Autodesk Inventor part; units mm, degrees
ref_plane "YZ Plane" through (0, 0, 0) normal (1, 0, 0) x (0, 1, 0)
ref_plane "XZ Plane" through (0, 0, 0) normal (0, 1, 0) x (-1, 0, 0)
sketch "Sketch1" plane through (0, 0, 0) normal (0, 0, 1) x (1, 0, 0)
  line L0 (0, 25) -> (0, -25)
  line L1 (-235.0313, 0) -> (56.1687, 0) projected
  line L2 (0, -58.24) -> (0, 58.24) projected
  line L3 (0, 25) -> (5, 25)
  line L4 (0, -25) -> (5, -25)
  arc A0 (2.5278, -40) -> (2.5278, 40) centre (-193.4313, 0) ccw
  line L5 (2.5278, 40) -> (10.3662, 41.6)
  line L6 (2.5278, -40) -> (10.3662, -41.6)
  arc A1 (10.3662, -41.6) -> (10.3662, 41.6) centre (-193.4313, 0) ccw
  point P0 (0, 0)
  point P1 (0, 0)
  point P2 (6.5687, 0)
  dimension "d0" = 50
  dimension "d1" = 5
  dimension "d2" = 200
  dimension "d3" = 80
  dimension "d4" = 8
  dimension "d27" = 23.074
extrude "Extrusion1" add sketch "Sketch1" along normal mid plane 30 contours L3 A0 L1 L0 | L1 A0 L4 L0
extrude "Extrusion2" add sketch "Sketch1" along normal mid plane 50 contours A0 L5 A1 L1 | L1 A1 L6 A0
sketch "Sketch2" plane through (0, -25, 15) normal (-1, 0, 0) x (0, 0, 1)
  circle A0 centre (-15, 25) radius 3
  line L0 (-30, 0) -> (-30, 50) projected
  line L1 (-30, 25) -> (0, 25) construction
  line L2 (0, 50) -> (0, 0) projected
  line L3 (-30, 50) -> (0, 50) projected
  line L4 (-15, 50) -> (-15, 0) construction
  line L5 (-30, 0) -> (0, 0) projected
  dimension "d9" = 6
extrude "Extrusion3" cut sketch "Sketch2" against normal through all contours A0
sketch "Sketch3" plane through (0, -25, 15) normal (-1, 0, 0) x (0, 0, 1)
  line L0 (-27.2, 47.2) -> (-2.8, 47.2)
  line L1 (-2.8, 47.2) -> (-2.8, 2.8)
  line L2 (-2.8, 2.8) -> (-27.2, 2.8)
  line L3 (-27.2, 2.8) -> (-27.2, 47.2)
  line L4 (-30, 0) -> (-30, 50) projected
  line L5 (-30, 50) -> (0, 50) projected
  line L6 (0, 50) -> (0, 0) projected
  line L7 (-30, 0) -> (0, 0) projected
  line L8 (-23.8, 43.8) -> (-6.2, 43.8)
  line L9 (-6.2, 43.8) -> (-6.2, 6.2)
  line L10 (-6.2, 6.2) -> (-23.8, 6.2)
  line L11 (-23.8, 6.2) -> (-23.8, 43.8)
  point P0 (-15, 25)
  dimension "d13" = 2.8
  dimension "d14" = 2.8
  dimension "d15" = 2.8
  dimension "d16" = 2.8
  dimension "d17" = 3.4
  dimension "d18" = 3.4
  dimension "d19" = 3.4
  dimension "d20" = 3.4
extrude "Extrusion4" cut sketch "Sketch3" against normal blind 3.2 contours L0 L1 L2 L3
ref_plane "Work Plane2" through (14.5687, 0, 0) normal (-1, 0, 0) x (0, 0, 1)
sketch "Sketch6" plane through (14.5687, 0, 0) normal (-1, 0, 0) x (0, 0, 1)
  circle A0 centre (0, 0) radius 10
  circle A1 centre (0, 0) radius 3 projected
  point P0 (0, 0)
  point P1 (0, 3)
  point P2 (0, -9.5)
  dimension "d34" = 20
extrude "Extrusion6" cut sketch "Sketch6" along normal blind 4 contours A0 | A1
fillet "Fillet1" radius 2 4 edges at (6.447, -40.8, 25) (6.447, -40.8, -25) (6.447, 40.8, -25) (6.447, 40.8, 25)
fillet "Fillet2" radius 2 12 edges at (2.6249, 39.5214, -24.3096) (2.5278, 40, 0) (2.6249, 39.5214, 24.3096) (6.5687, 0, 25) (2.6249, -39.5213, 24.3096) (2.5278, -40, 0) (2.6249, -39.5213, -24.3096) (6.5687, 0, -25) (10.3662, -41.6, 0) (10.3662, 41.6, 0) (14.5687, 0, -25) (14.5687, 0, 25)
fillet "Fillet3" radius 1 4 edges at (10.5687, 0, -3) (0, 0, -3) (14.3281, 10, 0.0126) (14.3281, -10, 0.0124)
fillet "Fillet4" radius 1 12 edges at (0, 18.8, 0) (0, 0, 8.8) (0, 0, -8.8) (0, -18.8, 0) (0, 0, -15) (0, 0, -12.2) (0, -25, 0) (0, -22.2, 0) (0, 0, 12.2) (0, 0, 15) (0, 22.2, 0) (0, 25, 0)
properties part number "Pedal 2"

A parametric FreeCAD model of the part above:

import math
import FreeCAD as App
import Part
import Sketcher

V = App.Vector


def edges_at(feature, points):
    """Names of the edges that pass closest to the given points."""
    edges = feature.Shape.Edges
    near = lambda p: min(range(len(edges)), key=lambda i: edges[i].distToShape(Part.Vertex(*p))[0])
    return sorted({f"Edge{near(p) + 1}" for p in points})


def add_polygon(sketch, points):
    """Adds a closed chain of lines whose ends are joined by coincident constraints."""
    first, n = sketch.GeometryCount, len(points)
    for a, b in zip(points, points[1:] + points[:1]):
        sketch.addGeometry(Part.LineSegment(App.Vector(*a, 0), App.Vector(*b, 0)), False)
    for i in range(n):
        sketch.addConstraint(Sketcher.Constraint("Coincident", first + i, 2, first + (i + 1) % n, 1))

doc = App.newDocument("Part")
body = doc.addObject("PartDesign::Body", "Body")

# Sketch on XY plane
sketch1 = doc.addObject("Sketcher::SketchObject", "Sketch")
body.addObject(sketch1)
sketch1.AttachmentSupport = (doc.XY_Plane, [""])
sketch1.MapMode = "FlatFace"
sketch1.addGeometry([
    Part.LineSegment(V(5, 25, 0), V(0, 25, 0)),
    Part.LineSegment(V(0, 25, 0), V(0, -25, 0)),
    Part.LineSegment(V(0, -25, 0), V(5, -25, 0)),
    Part.ArcOfCircle(Part.Circle(V(-193, 0, 0), V(0, 0, 1), 200), math.radians(-7.18), math.radians(7.18)),
], False)
sketch1.addConstraint([
    Sketcher.Constraint("Coincident", 0, 2, 1, 1),
    Sketcher.Constraint("Coincident", 1, 2, 2, 1),
    Sketcher.Constraint("Coincident", 2, 2, 3, 1),
    Sketcher.Constraint("Coincident", 3, 2, 0, 1),
    Sketcher.Constraint("Horizontal", 0),
    Sketcher.Constraint("Vertical", 1),
    Sketcher.Constraint("Horizontal", 2),
    Sketcher.Constraint("Symmetric", 0, 2, 1, 2, -1, 1),
    Sketcher.Constraint("PointOnObject", 3, 3, -1),
    Sketcher.Constraint("Radius", 3, 200.0),
    Sketcher.Constraint("DistanceX", 0, 2, 0, 1, 5.0),
    Sketcher.Constraint("DistanceY", 1, 2, 1, 1, 50.0),
])
pad1 = doc.addObject("PartDesign::Pad", "Pad")
body.addObject(pad1)
pad1.Profile = sketch1
pad1.Length = 30
pad1.Midplane = True

# Sketch on XY plane
sketch2 = doc.addObject("Sketcher::SketchObject", "Sketch001")
body.addObject(sketch2)
sketch2.AttachmentSupport = (doc.XY_Plane, [""])
sketch2.MapMode = "FlatFace"
sketch2.addGeometry([
    Part.ArcOfCircle(Part.Circle(V(-193, 0, 0), V(0, 0, 1), 200), math.radians(-12), math.radians(12)),
    Part.LineSegment(V(3, -40, 0), V(10, -42, 0)),
    Part.ArcOfCircle(Part.Circle(V(-193, 0, 0), V(0, 0, 1), 208), math.radians(-12), math.radians(12)),
    Part.LineSegment(V(10, 42, 0), V(3, 40, 0)),
], False)
sketch2.addConstraint([
    Sketcher.Constraint("Coincident", 0, 1, 1, 1),
    Sketcher.Constraint("Coincident", 1, 2, 2, 1),
    Sketcher.Constraint("Coincident", 2, 2, 3, 1),
    Sketcher.Constraint("Coincident", 3, 2, 0, 2),
    Sketcher.Constraint("Coincident", 2, 3, 0, 3),
    Sketcher.Constraint("Symmetric", 1, 2, 2, 2, -1),
    Sketcher.Constraint("Vertical", 0, 1, 3, 2),
    Sketcher.Constraint("Radius", 0, 200.0),
    Sketcher.Constraint("Distance", 1, 8.0),
    Sketcher.Constraint("DistanceY", 0, 1, 3, 2, 80.0),
    Sketcher.Constraint("DistanceY", 1, 2, -1, 1, 41.6),
    Sketcher.Constraint("DistanceX", 0, 3, -1, 1, 193.4313),
])
pad2 = doc.addObject("PartDesign::Pad", "Pad001")
body.addObject(pad2)
pad2.Profile = sketch2
pad2.Length = 50
pad2.Midplane = True

# Sketch on YZ plane
sketch3 = doc.addObject("Sketcher::SketchObject", "Sketch002")
body.addObject(sketch3)
sketch3.AttachmentSupport = (doc.YZ_Plane, [""])
sketch3.MapMode = "FlatFace"
sketch3.addGeometry(Part.Circle(V(0, 0, 0), V(0, 0, 1), 3), False)
sketch3.addConstraint([
    Sketcher.Constraint("Coincident", 0, 3, -1, 1),
    Sketcher.Constraint("Diameter", 0, 6.0),
])
pocket1 = doc.addObject("PartDesign::Pocket", "Pocket")
body.addObject(pocket1)
pocket1.Profile = sketch3
pocket1.Type = "ThroughAll"
pocket1.Reversed = True

# Sketch on YZ plane
sketch4 = doc.addObject("Sketcher::SketchObject", "Sketch003")
body.addObject(sketch4)
sketch4.AttachmentSupport = (doc.YZ_Plane, [""])
sketch4.MapMode = "FlatFace"
add_polygon(sketch4, [(22, 12), (22, -12), (-22, -12), (-22, 12)])  # lines 0-3
add_polygon(sketch4, [(-19, -9), (19, -9), (19, 9), (-19, 9)])  # lines 4-7
sketch4.addConstraint([
    Sketcher.Constraint("Vertical", 0),
    Sketcher.Constraint("Horizontal", 1),
    Sketcher.Constraint("Vertical", 2),
    Sketcher.Constraint("Horizontal", 3),
    Sketcher.Constraint("Horizontal", 4),
    Sketcher.Constraint("Vertical", 5),
    Sketcher.Constraint("Horizontal", 6),
    Sketcher.Constraint("Vertical", 7),
    Sketcher.Constraint("Symmetric", 0, 2, 2, 2, -1, 1),
    Sketcher.Constraint("Symmetric", 4, 2, 6, 2, -1, 1),
    Sketcher.Constraint("DistanceX", 4, 2, 0, 2, 3.4),
    Sketcher.Constraint("DistanceY", 0, 2, 4, 2, 3.4),
    Sketcher.Constraint("DistanceX", 1, 2, 1, 1, 44.4),
    Sketcher.Constraint("DistanceY", 0, 2, 0, 1, 24.4),
])
pocket2 = doc.addObject("PartDesign::Pocket", "Pocket001")
body.addObject(pocket2)
pocket2.Profile = sketch4
pocket2.Length = 3.2
pocket2.Reversed = True

# Sketch on YZ plane
sketch5 = doc.addObject("Sketcher::SketchObject", "Sketch004")
body.addObject(sketch5)
sketch5.AttachmentSupport = (doc.YZ_Plane, [""])
sketch5.MapMode = "FlatFace"
sketch5.AttachmentOffset = App.Placement(V(0, 0, 14.5687), App.Rotation())
sketch5.addGeometry(Part.Circle(V(0, 0, 0), V(0, 0, 1), 10), False)
sketch5.addConstraint([
    Sketcher.Constraint("Coincident", 0, 3, -1, 1),
    Sketcher.Constraint("Diameter", 0, 20.0),
])
pocket3 = doc.addObject("PartDesign::Pocket", "Pocket002")
body.addObject(pocket3)
pocket3.Profile = sketch5
pocket3.Length = 4
doc.recompute()

fillet = doc.addObject("PartDesign::Fillet", "Fillet")
body.addObject(fillet)
fillet.Base = (pocket3, edges_at(pocket3, [
    (6.447, -40.8, 25),
    (6.447, -40.8, -25),
    (6.447, 40.8, -25),
    (6.447, 40.8, 25),
]))
fillet.Radius = 2
doc.recompute()

fillet2 = doc.addObject("PartDesign::Fillet", "Fillet001")
body.addObject(fillet2)
fillet2.Base = (fillet, edges_at(fillet, [
    (2.625, 39.521, -24.31),
    (2.528, 40, 0),
    (2.625, 39.521, 24.31),
    (6.569, 0, 25),
    (2.625, -39.521, 24.31),
    (2.528, -40, 0),
    (2.625, -39.521, -24.31),
    (6.569, 0, -25),
    (10.366, -41.6, 0),
    (10.366, 41.6, 0),
    (14.569, 0, -25),
    (14.569, 0, 25),
]))
fillet2.Radius = 2
doc.recompute()

fillet3 = doc.addObject("PartDesign::Fillet", "Fillet002")
body.addObject(fillet3)
fillet3.Base = (fillet2, edges_at(fillet2, [
    (10.569, 0, -3),
    (0, 0, -3),
    (14.328, 10, 0.013),
    (14.328, -10, 0.012),
]))
fillet3.Radius = 1
doc.recompute()

fillet4 = doc.addObject("PartDesign::Fillet", "Fillet003")
body.addObject(fillet4)
fillet4.Base = (fillet3, edges_at(fillet3, [
    (0, 18.8, 0),
    (0, 0, 8.8),
    (0, 0, -8.8),
    (0, -18.8, 0),
    (0, 0, -15),
    (0, 0, -12.2),
    (0, -25, 0),
    (0, -22.2, 0),
    (0, 0, 12.2),
    (0, 0, 15),
    (0, 22.2, 0),
    (0, 25, 0),
]))
fillet4.Radius = 1

doc.recompute()
